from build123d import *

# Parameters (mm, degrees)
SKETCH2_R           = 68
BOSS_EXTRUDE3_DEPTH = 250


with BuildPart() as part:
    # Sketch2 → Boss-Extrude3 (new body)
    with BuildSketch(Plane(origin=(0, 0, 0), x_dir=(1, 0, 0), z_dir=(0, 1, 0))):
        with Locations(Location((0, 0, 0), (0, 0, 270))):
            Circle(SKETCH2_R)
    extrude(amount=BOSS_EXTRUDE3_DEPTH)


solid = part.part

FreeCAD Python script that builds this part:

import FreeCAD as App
import Part
import Sketcher

V = App.Vector

doc = App.newDocument("Part")
params = doc.addObject("Spreadsheet::Sheet", "Params")
for row, (alias, value) in enumerate([
    ("sketch1_diameter", "136 mm"),
    ("pad1_length", "250 mm"),
], start=1):
    params.set(f"A{row}", alias)
    params.set(f"B{row}", "=" + value)
    params.setAlias(f"B{row}", alias)

body = doc.addObject("PartDesign::Body", "Body")

# Sketch on XZ plane
sketch1 = body.newObject("Sketcher::SketchObject", "Sketch")
sketch1.AttachmentSupport = (doc.getObject("XZ_Plane"), [""])
sketch1.MapMode = "FlatFace"
sketch1.addGeometry(Part.Circle(V(0, 0, 0), V(0, 0, 1), 68), False)
sketch1.addConstraint(Sketcher.Constraint("Coincident", 0, 3, -1, 1))
sketch1.addConstraint(Sketcher.Constraint("Diameter", 0, 136.0))
sketch1.setExpression("Constraints[1]", "Params.sketch1_diameter")
pad1 = body.newObject("PartDesign::Pad", "Pad")
pad1.Profile = sketch1
pad1.setExpression("Length", "Params.pad1_length")
pad1.Reversed = True

doc.recompute()
